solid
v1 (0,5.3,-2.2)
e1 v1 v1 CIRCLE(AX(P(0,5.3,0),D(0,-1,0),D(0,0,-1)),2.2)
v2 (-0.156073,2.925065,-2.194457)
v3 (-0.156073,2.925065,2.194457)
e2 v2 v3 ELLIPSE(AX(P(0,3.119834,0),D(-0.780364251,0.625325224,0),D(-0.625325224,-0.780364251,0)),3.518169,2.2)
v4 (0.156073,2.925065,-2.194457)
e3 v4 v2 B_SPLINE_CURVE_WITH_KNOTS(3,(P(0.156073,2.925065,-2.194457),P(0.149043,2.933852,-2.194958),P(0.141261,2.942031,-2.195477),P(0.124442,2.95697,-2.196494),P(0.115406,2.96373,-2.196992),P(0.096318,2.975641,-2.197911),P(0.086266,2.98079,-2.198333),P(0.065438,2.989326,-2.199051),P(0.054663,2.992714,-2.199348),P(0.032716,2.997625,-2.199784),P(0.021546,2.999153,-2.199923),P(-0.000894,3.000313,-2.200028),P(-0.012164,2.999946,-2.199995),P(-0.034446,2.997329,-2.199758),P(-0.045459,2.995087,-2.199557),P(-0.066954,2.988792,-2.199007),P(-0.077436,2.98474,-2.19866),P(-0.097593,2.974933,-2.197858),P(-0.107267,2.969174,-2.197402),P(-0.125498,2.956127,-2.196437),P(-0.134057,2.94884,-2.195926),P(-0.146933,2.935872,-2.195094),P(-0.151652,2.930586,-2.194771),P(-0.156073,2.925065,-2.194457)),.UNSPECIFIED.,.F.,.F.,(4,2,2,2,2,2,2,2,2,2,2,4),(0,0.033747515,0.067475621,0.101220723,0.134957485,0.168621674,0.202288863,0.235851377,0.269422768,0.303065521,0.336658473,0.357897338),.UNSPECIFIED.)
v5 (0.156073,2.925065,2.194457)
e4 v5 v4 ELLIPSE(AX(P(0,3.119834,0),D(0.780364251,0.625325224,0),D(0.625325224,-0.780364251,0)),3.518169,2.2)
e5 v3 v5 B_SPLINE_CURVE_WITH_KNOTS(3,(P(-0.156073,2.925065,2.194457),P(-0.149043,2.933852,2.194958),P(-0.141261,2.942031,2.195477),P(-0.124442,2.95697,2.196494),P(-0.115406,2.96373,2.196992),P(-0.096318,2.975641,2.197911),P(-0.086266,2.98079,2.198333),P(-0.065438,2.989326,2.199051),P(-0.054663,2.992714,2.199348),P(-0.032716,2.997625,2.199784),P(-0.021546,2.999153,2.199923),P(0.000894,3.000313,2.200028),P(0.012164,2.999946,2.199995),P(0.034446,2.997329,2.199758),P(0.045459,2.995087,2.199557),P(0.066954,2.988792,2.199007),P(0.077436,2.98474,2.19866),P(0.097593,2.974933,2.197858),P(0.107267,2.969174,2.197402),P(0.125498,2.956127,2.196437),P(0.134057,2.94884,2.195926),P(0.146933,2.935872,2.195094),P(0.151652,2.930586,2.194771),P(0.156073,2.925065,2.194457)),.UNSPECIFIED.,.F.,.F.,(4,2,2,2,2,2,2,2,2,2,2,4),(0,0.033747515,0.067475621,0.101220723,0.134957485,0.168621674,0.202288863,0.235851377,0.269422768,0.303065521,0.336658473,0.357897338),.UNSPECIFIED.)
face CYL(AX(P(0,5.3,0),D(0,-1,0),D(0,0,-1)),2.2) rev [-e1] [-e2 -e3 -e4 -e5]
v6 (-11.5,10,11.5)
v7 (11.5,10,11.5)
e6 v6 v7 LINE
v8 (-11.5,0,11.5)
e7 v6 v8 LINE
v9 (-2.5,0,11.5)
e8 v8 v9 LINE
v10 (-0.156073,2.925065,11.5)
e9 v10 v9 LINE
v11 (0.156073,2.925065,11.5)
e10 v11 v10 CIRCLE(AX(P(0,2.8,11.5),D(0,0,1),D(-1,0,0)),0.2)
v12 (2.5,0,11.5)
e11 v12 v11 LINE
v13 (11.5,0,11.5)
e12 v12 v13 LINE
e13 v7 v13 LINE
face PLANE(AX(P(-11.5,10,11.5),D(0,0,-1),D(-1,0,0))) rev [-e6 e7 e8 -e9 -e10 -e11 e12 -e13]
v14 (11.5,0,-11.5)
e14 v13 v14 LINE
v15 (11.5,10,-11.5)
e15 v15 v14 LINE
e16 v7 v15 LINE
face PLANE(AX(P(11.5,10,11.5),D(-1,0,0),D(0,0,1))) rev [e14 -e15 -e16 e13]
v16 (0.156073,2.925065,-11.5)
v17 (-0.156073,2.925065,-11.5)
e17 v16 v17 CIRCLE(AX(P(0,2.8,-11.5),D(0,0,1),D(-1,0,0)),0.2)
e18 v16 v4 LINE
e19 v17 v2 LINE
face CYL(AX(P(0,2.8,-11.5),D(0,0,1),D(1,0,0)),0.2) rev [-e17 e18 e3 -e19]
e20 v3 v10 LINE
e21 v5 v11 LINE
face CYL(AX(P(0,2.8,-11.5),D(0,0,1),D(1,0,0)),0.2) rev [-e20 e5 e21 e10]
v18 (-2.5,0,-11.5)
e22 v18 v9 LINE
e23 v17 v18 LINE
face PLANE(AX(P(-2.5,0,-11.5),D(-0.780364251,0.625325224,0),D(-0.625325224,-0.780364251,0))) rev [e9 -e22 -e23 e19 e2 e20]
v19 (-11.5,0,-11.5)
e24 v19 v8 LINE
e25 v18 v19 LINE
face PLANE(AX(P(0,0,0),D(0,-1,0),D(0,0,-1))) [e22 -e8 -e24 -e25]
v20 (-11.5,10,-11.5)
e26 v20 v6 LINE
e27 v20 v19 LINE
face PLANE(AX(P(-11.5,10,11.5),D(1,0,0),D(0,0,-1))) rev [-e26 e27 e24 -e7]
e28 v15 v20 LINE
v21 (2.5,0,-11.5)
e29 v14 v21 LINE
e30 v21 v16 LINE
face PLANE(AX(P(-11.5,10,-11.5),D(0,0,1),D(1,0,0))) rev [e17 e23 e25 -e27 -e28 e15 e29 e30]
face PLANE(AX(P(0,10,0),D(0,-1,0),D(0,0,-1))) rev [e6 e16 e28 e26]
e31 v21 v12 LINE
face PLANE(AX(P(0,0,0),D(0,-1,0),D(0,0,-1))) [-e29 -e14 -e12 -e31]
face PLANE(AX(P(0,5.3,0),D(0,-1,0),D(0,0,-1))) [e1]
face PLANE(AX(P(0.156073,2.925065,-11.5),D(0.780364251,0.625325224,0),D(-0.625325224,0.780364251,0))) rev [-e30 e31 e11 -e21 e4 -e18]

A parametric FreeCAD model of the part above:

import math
import FreeCAD as App
import Part
import Sketcher
Q = App.Units.Quantity

doc = App.newDocument("Part")
params = doc.addObject("Spreadsheet::Sheet", "Params")
for row, (alias, value) in enumerate([
    ("sketch1_width", "23 mm"),
    ("pad1_length", "10 mm"),
    ("sketch2_radius", "0.2 mm"),
    ("sketch2_width", "5 mm"),
    ("sketch3_diameter", "4.4 mm"),
    ("pocket2_length", "5.3 mm"),
], start=1):
    params.set(f"A{row}", alias)
    params.set(f"B{row}", "=" + value)
    params.setAlias(f"B{row}", alias)

body = doc.addObject("PartDesign::Body", "Body")

sketch1 = body.newObject("Sketcher::SketchObject", "Sketch")
sketch1.AttachmentSupport = (doc.getObject("XZ_Plane"), [""])
sketch1.MapMode = "FlatFace"
sketch1.addGeometry([
    Part.LineSegment(App.Vector(-12, -12, 0), App.Vector(-12, 12, 0)),
    Part.LineSegment(App.Vector(-12, 12, 0), App.Vector(12, 12, 0)),
    Part.LineSegment(App.Vector(12, 12, 0), App.Vector(12, -12, 0)),
    Part.LineSegment(App.Vector(12, -12, 0), App.Vector(-12, -12, 0)),
], False)
sketch1.addConstraint([
    Sketcher.Constraint("Coincident", 0, 2, 1, 1),
    Sketcher.Constraint("Coincident", 1, 2, 2, 1),
    Sketcher.Constraint("Coincident", 2, 2, 3, 1),
    Sketcher.Constraint("Coincident", 3, 2, 0, 1),
    Sketcher.Constraint("Vertical", 0),
    Sketcher.Constraint("Horizontal", 1),
    Sketcher.Constraint("Vertical", 2),
    Sketcher.Constraint("Horizontal", 3),
    Sketcher.Constraint("Symmetric", 0, 2, 2, 2, -1, 1),
    Sketcher.Constraint("Equal", 3, 0),
    Sketcher.Constraint("DistanceX", 1, 1, 1, 2, Q("23 mm")),
])
sketch1.setExpression("Constraints[10]", "Params.sketch1_width")
pad1 = body.newObject("PartDesign::Pad", "Pad")
pad1.Profile = sketch1
pad1.setExpression("Length", "Params.pad1_length")
pad1.Reversed = True

sketch2 = body.newObject("Sketcher::SketchObject", "Sketch001")
sketch2.AttachmentSupport = (doc.getObject("XY_Plane"), [""])
sketch2.MapMode = "FlatFace"
sketch2.AttachmentOffset = App.Placement(App.Vector(0, 0, 11.5), App.Rotation())
sketch2.addGeometry([
    Part.LineSegment(App.Vector(-0.16, 2.93, 0), App.Vector(-2.5, 0, 0)),
    Part.LineSegment(App.Vector(-2.5, 0, 0), App.Vector(2.5, 0, 0)),
    Part.LineSegment(App.Vector(2.5, 0, 0), App.Vector(0.16, 2.93, 0)),
    Part.ArcOfCircle(Part.Circle(App.Vector(0, 2.8, 0), App.Vector(0, 0, 1), 0.2), math.radians(39), math.radians(141)),
], False)
sketch2.addConstraint([
    Sketcher.Constraint("Coincident", 0, 2, 1, 1),
    Sketcher.Constraint("Coincident", 1, 2, 2, 1),
    Sketcher.Constraint("Tangent", 2, 2, 3, 1),
    Sketcher.Constraint("Tangent", 3, 2, 0, 1),
    Sketcher.Constraint("Horizontal", 1),
    Sketcher.Constraint("Symmetric", 0, 2, 1, 2, -1, 1),
    Sketcher.Constraint("PointOnObject", 3, 3, -2),
    Sketcher.Constraint("Radius", 3, Q("0.2 mm")),
    Sketcher.Constraint("DistanceX", 1, 1, 1, 2, Q("5 mm")),
    Sketcher.Constraint("DistanceY", -1, 1, 3, 3, Q("2.8 mm")),
])
sketch2.setExpression("Constraints[7]", "Params.sketch2_radius")
sketch2.setExpression("Constraints[8]", "Params.sketch2_width")
pocket1 = body.newObject("PartDesign::Pocket", "Pocket")
pocket1.Profile = sketch2
pocket1.Type = "ThroughAll"

sketch3 = body.newObject("Sketcher::SketchObject", "Sketch002")
sketch3.AttachmentSupport = (doc.getObject("XZ_Plane"), [""])
sketch3.MapMode = "FlatFace"
sketch3.addGeometry(Part.Circle(App.Vector(0, 0, 0), App.Vector(0, 0, 1), 2.2), False)
sketch3.addConstraint([
    Sketcher.Constraint("Coincident", 0, 3, -1, 1),
    Sketcher.Constraint("Diameter", 0, Q("4.4 mm")),
])
sketch3.setExpression("Constraints[1]", "Params.sketch3_diameter")
pocket2 = body.newObject("PartDesign::Pocket", "Pocket001")
pocket2.Profile = sketch3
pocket2.setExpression("Length", "Params.pocket2_length")

doc.recompute()
